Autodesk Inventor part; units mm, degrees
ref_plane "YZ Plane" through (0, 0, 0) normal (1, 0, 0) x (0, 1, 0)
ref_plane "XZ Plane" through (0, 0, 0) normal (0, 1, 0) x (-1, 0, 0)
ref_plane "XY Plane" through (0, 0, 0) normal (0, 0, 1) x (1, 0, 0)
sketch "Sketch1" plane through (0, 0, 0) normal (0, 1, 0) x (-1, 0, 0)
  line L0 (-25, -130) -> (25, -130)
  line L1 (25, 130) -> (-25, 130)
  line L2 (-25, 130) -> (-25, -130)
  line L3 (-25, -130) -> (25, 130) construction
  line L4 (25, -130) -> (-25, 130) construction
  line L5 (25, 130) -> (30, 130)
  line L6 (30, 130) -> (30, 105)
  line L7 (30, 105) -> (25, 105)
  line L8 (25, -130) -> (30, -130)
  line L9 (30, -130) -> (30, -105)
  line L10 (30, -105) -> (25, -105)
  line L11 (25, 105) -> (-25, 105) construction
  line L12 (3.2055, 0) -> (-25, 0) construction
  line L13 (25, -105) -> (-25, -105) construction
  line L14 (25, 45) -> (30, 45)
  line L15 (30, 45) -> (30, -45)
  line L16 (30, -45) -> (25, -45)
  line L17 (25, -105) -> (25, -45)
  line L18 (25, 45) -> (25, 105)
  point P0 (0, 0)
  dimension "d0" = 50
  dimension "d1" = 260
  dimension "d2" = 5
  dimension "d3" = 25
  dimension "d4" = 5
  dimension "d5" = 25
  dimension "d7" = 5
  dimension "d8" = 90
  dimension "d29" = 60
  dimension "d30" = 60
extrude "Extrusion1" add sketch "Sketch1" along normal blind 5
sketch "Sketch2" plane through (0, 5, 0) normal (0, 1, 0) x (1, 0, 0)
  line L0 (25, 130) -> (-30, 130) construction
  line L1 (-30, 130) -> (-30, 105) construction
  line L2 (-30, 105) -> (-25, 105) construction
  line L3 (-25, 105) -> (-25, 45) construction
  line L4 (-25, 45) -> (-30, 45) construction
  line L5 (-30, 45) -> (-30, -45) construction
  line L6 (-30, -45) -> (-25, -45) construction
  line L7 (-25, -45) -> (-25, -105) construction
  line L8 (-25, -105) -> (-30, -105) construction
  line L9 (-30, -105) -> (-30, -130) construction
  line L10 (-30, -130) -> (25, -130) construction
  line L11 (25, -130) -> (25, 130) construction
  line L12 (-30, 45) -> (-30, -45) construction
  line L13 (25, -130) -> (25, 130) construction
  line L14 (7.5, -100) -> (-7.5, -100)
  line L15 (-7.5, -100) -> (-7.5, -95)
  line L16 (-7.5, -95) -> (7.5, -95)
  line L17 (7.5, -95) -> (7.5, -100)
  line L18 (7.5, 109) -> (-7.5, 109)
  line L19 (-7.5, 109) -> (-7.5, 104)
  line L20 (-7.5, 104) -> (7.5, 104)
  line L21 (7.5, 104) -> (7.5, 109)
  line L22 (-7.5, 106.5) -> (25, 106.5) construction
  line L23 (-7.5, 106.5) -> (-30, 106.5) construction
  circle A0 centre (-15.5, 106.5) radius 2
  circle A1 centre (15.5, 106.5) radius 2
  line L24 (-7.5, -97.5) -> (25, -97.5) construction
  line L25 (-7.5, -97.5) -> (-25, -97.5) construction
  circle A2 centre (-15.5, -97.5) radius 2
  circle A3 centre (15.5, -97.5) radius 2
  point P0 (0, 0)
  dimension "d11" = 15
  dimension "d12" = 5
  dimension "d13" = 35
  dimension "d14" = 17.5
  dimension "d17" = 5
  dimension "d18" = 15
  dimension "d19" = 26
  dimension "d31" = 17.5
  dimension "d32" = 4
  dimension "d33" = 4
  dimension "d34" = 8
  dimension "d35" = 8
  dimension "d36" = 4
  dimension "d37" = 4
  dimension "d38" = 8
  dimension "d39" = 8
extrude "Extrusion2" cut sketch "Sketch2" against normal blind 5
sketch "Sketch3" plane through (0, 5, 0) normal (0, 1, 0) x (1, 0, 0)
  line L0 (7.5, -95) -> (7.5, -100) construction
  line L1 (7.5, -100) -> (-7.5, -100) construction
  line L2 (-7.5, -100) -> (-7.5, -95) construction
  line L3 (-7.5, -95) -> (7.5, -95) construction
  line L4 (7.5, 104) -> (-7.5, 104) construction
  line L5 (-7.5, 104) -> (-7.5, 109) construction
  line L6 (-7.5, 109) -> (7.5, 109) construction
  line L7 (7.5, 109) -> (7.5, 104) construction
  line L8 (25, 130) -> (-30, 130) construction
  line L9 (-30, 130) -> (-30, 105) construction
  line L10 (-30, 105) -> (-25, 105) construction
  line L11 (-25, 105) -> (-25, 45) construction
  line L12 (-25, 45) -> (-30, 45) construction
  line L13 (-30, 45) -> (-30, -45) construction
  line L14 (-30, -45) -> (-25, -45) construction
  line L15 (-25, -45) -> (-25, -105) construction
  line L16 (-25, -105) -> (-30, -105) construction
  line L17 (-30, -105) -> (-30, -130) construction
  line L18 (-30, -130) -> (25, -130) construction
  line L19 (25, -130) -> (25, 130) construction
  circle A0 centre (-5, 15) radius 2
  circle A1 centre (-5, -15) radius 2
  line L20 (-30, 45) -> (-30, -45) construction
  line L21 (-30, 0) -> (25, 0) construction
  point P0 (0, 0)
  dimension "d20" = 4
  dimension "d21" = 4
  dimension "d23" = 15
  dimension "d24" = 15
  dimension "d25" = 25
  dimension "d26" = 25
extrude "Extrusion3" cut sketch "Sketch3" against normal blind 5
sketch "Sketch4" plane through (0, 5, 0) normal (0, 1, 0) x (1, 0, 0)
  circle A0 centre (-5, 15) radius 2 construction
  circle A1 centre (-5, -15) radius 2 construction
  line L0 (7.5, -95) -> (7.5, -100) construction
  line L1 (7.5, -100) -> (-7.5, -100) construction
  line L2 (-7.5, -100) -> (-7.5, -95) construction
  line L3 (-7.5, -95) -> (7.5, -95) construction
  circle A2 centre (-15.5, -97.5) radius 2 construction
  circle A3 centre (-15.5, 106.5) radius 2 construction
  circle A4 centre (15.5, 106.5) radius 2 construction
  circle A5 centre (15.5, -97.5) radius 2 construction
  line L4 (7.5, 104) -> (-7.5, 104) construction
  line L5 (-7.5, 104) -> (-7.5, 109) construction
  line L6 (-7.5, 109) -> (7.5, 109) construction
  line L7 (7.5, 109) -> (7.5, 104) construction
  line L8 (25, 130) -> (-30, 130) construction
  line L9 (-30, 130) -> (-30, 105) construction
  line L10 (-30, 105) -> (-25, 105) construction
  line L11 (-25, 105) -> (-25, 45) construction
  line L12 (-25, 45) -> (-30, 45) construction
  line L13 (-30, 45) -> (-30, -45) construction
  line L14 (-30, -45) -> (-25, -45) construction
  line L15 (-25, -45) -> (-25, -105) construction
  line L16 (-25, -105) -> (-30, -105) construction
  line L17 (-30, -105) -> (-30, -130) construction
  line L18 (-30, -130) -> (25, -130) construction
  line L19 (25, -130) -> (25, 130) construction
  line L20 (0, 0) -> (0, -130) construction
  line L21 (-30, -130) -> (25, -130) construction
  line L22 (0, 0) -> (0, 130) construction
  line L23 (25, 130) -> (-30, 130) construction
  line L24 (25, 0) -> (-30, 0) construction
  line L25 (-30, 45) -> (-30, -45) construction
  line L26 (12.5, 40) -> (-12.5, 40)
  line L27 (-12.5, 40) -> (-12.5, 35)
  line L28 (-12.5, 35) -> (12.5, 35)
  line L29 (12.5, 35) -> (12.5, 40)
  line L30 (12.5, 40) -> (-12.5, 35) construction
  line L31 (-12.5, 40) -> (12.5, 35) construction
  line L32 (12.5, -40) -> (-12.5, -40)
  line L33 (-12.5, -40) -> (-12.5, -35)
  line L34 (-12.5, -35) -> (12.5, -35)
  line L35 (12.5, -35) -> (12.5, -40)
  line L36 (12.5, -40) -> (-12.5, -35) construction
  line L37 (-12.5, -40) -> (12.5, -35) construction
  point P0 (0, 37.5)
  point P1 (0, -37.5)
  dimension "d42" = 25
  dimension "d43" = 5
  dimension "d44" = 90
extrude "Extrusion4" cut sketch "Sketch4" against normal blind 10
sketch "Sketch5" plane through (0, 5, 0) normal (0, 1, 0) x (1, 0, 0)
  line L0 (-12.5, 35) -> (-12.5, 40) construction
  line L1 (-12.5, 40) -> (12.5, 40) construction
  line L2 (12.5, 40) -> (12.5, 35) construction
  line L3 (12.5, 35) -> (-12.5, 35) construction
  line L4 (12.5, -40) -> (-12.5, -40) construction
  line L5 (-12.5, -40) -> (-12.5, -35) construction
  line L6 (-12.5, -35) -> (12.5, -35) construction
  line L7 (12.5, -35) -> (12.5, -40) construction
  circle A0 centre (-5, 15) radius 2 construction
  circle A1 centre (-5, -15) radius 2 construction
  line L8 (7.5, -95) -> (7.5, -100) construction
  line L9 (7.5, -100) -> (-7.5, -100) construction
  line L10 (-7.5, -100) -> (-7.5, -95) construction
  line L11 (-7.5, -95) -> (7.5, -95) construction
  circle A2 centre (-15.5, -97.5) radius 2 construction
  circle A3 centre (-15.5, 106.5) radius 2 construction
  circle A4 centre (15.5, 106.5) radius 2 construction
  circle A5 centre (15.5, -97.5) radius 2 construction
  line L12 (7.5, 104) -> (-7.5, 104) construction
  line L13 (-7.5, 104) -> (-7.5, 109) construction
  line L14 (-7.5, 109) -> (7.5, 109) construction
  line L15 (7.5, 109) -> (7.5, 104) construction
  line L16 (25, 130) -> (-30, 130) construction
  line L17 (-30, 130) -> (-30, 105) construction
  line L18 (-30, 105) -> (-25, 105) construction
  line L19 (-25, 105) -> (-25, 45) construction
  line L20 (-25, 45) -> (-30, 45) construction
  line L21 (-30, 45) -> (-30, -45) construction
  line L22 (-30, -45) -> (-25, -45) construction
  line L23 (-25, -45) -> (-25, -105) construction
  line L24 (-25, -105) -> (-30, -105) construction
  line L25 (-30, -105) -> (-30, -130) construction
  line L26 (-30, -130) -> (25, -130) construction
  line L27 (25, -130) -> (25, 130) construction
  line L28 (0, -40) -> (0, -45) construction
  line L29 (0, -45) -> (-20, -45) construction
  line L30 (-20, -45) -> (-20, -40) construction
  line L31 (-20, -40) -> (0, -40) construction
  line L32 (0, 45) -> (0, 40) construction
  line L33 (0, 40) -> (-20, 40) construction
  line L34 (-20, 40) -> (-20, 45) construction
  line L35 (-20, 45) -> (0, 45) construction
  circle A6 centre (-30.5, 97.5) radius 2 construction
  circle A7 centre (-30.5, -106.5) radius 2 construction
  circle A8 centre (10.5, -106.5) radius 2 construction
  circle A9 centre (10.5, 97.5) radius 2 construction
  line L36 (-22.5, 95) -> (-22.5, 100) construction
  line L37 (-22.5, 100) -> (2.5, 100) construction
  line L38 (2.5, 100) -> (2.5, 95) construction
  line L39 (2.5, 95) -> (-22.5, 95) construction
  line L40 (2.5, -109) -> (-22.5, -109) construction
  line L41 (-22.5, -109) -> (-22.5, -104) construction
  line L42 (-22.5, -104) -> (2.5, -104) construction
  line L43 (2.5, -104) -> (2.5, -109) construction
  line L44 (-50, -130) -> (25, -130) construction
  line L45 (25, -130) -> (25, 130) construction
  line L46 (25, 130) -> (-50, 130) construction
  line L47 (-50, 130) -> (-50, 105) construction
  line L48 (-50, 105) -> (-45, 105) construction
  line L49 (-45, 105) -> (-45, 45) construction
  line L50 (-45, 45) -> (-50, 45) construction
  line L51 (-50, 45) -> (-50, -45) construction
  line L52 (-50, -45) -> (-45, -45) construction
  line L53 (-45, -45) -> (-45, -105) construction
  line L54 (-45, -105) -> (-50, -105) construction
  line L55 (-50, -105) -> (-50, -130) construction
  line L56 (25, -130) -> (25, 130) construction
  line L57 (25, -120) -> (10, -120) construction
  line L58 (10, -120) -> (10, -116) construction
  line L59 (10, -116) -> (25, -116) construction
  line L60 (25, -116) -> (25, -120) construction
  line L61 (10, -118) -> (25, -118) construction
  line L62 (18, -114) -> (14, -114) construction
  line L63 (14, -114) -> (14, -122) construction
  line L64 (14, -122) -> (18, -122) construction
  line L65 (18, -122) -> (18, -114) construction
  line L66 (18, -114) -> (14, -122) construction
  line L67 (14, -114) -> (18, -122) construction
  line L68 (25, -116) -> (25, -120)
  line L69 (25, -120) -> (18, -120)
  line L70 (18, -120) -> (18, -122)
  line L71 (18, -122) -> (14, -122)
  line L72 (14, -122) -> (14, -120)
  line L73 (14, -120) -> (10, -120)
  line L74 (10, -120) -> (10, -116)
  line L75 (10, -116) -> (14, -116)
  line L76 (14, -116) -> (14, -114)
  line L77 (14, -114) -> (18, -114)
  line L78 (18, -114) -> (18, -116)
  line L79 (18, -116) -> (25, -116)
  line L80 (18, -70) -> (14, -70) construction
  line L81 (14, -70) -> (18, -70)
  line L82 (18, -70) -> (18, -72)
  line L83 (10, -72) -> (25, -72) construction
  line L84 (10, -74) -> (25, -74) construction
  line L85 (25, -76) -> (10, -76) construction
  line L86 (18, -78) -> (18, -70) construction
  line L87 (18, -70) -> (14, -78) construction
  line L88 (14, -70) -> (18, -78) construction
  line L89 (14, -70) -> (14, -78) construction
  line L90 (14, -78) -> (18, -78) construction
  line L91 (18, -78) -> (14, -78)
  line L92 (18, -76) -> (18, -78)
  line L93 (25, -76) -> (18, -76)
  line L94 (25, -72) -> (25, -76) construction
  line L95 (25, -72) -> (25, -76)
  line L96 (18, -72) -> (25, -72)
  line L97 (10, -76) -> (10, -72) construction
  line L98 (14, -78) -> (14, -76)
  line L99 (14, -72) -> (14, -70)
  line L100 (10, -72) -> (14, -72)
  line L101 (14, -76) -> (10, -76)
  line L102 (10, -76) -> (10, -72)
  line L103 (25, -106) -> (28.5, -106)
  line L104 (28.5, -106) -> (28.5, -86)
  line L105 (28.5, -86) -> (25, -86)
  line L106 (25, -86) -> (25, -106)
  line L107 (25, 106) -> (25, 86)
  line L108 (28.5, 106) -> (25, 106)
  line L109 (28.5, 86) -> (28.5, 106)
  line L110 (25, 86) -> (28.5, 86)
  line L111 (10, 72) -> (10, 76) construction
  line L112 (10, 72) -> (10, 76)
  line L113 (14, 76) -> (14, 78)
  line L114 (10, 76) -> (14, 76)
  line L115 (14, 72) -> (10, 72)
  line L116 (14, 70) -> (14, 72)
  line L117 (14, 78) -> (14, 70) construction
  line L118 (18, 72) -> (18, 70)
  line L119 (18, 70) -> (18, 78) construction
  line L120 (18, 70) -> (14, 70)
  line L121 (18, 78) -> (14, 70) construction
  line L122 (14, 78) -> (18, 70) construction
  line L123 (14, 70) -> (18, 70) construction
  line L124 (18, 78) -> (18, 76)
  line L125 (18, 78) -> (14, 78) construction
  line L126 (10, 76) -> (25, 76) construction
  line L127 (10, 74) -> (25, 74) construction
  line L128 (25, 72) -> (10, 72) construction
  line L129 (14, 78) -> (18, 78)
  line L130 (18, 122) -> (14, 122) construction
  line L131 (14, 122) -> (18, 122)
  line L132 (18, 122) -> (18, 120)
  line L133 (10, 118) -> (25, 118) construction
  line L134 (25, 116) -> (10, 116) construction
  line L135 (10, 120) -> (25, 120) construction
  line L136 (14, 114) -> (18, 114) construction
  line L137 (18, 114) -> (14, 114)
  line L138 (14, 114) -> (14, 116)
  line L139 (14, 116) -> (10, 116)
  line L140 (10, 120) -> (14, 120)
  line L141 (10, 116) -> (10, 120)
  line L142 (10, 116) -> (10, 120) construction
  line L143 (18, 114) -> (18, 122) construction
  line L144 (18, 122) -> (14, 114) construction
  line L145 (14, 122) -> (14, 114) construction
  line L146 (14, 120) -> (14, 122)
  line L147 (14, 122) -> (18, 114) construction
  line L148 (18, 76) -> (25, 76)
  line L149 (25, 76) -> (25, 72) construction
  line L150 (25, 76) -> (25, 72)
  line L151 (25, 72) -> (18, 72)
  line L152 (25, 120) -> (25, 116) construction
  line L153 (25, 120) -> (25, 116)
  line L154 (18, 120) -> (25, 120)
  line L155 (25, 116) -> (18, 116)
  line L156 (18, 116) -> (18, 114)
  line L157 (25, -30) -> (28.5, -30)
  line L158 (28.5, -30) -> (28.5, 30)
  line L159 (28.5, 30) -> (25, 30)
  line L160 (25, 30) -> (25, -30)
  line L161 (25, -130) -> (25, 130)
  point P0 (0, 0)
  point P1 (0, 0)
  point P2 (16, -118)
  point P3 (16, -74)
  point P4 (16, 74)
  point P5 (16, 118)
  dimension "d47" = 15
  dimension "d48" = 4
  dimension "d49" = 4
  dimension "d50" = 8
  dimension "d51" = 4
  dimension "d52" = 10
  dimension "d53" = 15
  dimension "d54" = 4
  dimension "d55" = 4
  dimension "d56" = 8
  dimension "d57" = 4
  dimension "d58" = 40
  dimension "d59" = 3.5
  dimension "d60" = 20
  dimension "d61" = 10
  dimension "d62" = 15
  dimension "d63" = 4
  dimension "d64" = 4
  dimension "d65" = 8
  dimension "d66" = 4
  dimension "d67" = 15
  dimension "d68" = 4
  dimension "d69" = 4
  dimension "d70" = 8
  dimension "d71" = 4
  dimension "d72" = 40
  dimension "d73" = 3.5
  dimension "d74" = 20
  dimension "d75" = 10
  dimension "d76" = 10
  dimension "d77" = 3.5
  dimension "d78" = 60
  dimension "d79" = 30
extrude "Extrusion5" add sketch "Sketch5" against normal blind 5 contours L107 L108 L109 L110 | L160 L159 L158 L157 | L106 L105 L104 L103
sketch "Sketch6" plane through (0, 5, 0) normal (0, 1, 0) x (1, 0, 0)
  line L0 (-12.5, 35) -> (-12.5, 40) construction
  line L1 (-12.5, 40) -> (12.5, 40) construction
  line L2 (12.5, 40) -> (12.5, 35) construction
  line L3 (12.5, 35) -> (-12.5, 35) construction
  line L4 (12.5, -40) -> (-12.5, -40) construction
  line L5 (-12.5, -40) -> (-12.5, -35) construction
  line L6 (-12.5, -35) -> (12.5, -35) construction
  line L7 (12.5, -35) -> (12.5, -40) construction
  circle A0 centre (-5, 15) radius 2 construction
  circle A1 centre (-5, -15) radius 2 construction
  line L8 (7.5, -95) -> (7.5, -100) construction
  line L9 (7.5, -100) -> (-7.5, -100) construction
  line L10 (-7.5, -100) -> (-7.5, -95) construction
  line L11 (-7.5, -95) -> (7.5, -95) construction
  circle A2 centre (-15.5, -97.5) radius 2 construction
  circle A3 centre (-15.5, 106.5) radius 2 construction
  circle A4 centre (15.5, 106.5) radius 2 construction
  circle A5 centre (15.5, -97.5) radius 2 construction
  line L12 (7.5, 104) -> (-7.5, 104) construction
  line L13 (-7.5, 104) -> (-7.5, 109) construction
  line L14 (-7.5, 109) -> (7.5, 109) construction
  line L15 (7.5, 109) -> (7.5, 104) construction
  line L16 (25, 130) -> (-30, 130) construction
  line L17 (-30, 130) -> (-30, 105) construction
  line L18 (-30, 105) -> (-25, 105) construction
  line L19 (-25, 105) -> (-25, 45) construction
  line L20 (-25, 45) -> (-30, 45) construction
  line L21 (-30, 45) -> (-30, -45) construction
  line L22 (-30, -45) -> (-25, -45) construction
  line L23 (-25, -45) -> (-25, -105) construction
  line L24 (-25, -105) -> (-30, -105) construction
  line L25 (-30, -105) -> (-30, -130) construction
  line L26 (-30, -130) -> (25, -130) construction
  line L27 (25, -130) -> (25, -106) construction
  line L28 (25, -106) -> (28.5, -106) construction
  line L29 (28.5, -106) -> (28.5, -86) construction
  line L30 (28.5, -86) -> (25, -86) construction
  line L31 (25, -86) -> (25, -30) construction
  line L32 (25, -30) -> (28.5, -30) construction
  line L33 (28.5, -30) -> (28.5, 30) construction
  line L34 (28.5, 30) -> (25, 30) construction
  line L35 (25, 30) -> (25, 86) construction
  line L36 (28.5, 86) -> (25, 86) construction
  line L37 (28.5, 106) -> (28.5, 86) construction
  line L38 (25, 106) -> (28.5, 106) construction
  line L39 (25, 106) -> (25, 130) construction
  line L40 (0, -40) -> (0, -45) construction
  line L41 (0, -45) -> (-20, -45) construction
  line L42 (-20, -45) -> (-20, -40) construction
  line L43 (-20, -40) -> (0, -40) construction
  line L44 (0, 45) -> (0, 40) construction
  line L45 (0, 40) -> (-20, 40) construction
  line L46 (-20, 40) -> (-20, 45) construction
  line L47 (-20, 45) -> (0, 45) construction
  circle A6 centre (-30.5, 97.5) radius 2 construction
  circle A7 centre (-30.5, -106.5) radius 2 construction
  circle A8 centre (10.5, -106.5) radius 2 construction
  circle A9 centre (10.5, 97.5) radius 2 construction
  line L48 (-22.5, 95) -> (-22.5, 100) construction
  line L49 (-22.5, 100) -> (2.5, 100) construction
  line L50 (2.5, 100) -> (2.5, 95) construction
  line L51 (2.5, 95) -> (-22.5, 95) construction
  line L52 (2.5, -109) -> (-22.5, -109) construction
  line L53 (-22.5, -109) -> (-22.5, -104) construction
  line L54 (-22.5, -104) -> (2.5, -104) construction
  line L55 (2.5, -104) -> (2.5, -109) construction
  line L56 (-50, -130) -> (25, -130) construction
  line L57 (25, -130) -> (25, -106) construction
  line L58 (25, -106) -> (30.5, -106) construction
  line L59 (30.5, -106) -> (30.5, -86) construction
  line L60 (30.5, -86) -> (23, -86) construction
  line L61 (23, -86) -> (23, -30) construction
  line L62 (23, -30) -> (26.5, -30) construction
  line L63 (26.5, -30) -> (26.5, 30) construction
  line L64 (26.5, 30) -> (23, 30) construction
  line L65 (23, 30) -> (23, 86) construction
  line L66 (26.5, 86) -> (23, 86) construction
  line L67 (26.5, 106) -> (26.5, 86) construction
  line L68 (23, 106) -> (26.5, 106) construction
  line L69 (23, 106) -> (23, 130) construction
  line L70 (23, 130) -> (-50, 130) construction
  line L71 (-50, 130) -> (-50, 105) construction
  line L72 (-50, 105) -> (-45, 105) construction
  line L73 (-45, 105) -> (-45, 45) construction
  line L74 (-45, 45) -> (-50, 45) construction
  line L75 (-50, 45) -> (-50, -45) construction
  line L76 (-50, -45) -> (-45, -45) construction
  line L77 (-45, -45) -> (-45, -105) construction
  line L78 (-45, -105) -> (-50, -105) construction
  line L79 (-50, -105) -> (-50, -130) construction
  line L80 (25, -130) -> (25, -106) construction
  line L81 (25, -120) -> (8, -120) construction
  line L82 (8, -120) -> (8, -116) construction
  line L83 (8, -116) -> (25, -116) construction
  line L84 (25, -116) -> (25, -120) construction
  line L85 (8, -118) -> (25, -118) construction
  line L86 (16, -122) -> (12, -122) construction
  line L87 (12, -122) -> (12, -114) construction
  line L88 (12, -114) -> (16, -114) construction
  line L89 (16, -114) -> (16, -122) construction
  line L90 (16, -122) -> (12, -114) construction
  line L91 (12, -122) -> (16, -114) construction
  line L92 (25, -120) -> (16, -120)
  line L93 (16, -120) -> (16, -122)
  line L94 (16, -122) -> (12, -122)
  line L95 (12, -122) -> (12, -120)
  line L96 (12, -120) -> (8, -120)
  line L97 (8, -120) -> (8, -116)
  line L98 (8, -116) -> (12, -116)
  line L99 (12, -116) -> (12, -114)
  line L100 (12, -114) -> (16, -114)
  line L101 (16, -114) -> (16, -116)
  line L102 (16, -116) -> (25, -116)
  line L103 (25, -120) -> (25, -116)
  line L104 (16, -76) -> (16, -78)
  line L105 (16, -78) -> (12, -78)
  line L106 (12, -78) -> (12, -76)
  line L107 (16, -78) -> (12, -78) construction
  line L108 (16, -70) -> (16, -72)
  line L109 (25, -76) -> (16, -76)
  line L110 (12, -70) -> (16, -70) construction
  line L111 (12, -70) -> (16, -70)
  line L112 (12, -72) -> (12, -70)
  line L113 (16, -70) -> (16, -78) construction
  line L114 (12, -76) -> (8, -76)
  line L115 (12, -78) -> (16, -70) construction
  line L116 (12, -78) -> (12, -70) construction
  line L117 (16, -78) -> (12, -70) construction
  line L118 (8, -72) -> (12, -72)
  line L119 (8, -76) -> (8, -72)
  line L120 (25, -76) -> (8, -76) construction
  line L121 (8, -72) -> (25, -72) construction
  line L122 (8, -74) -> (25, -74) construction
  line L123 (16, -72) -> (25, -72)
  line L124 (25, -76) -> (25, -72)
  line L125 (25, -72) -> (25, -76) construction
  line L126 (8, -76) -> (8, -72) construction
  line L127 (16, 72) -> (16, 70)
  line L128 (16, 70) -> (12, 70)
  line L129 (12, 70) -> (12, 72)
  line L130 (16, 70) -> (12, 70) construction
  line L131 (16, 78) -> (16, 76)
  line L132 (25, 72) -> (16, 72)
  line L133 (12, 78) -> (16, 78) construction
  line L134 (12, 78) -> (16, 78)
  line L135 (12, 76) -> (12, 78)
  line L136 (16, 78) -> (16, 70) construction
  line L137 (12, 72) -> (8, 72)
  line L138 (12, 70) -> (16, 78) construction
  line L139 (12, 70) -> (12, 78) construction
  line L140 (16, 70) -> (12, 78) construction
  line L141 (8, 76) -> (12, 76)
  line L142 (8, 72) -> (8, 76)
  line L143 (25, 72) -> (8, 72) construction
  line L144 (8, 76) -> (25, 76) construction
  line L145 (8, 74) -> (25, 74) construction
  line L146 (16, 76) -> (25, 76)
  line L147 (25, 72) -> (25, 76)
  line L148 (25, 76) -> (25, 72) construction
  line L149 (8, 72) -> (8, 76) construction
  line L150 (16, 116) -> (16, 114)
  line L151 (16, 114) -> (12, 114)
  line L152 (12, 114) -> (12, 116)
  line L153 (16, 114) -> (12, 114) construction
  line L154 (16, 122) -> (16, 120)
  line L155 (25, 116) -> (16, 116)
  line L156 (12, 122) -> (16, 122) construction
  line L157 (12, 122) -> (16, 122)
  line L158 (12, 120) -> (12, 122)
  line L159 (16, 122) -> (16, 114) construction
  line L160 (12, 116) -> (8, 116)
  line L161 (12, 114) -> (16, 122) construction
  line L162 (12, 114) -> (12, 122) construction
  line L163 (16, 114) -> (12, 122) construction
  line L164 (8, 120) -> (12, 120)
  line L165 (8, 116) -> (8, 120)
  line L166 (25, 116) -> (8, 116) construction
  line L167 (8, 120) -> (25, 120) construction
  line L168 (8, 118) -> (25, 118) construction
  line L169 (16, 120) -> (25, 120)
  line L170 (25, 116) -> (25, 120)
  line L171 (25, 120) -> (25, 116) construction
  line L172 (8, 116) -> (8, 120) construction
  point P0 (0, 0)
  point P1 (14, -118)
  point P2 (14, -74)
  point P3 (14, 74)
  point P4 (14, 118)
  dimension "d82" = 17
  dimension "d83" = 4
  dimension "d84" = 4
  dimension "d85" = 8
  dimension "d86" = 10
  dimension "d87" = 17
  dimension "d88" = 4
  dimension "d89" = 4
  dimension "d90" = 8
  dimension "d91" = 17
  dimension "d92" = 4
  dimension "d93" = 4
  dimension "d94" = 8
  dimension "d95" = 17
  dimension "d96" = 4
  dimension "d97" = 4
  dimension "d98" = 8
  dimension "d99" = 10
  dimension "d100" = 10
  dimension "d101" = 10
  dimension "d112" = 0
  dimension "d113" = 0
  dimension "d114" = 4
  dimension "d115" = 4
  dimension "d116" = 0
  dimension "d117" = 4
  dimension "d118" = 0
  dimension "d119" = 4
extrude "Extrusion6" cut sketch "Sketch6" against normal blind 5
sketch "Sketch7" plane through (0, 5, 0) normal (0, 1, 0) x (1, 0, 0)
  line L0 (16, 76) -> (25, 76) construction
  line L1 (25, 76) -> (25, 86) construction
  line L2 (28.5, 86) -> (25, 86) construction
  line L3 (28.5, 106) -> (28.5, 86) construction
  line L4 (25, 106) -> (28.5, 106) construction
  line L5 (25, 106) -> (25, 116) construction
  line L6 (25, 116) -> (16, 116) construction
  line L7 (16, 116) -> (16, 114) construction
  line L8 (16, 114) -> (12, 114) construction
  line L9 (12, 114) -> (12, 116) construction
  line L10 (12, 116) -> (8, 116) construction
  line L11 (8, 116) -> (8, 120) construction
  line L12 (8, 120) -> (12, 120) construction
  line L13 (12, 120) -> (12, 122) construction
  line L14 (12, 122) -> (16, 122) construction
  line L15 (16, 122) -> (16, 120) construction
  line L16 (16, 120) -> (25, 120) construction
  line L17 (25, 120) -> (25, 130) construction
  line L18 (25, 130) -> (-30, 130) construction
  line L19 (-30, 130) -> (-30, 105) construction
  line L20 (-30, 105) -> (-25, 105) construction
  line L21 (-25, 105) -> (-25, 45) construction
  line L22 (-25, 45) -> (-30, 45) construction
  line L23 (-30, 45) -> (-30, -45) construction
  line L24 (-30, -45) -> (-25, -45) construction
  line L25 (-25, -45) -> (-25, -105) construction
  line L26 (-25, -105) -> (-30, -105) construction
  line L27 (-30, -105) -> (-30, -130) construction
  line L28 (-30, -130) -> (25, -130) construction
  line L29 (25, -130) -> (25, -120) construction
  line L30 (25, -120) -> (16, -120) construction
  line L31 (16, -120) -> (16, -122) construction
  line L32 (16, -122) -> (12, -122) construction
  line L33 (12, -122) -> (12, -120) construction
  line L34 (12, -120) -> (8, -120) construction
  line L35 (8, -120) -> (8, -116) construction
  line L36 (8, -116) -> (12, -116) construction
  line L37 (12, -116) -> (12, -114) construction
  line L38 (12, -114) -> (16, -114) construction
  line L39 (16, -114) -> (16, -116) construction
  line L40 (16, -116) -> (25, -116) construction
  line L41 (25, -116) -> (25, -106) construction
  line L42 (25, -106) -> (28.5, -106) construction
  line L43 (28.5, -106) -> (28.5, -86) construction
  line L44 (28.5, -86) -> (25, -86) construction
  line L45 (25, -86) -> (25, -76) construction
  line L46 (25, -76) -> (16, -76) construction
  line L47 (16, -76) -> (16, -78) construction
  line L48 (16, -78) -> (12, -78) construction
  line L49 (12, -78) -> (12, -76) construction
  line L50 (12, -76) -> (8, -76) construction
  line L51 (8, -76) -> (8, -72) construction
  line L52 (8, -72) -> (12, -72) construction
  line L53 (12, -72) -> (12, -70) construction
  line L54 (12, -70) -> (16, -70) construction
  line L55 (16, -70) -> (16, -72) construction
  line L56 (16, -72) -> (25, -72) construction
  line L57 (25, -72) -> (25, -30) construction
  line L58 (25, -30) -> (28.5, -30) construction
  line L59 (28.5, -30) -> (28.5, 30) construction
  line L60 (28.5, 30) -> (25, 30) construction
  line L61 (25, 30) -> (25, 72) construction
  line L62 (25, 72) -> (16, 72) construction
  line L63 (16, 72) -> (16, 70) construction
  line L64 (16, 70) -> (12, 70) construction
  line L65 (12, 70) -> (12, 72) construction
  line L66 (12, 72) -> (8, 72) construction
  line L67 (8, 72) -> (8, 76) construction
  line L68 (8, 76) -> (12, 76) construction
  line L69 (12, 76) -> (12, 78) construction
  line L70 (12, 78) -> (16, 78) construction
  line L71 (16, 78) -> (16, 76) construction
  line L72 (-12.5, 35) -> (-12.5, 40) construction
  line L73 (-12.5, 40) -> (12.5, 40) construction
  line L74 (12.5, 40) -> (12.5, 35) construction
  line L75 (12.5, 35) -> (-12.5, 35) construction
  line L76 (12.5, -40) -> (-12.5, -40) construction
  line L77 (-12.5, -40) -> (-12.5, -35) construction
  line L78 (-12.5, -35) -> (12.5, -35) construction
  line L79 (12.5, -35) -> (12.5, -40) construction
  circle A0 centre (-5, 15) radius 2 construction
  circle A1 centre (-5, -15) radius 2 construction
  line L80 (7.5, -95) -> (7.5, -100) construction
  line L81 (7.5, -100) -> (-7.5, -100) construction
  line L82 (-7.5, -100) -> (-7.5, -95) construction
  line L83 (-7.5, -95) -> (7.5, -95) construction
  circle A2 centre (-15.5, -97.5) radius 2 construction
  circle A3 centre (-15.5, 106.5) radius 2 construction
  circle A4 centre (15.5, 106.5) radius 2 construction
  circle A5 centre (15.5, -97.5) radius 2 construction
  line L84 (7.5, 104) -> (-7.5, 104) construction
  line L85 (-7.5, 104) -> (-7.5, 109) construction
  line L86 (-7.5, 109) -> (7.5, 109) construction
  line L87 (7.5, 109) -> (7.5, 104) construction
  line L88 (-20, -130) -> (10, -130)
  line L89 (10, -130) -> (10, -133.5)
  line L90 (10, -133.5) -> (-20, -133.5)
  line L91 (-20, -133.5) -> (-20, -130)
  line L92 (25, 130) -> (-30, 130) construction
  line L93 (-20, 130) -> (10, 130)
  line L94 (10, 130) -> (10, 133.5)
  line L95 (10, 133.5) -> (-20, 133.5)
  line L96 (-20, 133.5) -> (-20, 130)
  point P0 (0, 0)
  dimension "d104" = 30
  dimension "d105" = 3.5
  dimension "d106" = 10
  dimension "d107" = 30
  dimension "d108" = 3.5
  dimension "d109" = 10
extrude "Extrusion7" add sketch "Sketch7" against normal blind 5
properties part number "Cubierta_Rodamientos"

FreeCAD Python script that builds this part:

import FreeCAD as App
import Part
import Sketcher
Q = App.Units.Quantity

doc = App.newDocument("Part")
params = doc.addObject("Spreadsheet::Sheet", "Params")
for row, (alias, value) in enumerate([
    ("sketch1_width", "5 mm"),
    ("sketch1_height", "260 mm"),
    ("sketch1_height2", "25 mm"),
    ("sketch1_height3", "60 mm"),
    ("pad1_length", "5 mm"),
    ("sketch2_diameter", "4 mm"),
    ("sketch2_width", "15 mm"),
    ("sketch2_height", "5 mm"),
    ("pocket1_length", "5 mm"),
    ("sketch3_diameter", "4 mm"),
    ("pocket2_length", "5 mm"),
    ("sketch4_width", "25 mm"),
    ("sketch4_height", "5 mm"),
    ("pocket3_length", "10 mm"),
    ("sketch5_height", "20 mm"),
    ("sketch5_height2", "60 mm"),
    ("sketch5_width", "3.5 mm"),
    ("pad2_length", "5 mm"),
    ("sketch6_width", "4 mm"),
    ("pocket4_length", "5 mm"),
    ("sketch7_width", "30 mm"),
    ("sketch7_height", "3.5 mm"),
    ("pad3_length", "5 mm"),
], start=1):
    params.set(f"A{row}", alias)
    params.set(f"B{row}", "=" + value)
    params.setAlias(f"B{row}", alias)

body = doc.addObject("PartDesign::Body", "Body")

# Sketch on XZ plane
sketch1 = body.newObject("Sketcher::SketchObject", "Sketch")
sketch1.AttachmentSupport = (doc.getObject("XZ_Plane"), [""])
sketch1.MapMode = "FlatFace"
sketch1.addGeometry([
    Part.LineSegment(App.Vector(25, 130, 0), App.Vector(25, -130, 0)),  # 0
    Part.LineSegment(App.Vector(25, -130, 0), App.Vector(-30, -130, 0)),  # 1
    Part.LineSegment(App.Vector(-30, -130, 0), App.Vector(-30, -105, 0)),  # 2
    Part.LineSegment(App.Vector(-30, -105, 0), App.Vector(-25, -105, 0)),  # 3
    Part.LineSegment(App.Vector(-25, -105, 0), App.Vector(-25, -45, 0)),  # 4
    Part.LineSegment(App.Vector(-25, -45, 0), App.Vector(-30, -45, 0)),  # 5
    Part.LineSegment(App.Vector(-30, -45, 0), App.Vector(-30, 45, 0)),  # 6
    Part.LineSegment(App.Vector(-30, 45, 0), App.Vector(-25, 45, 0)),  # 7
    Part.LineSegment(App.Vector(-25, 45, 0), App.Vector(-25, 105, 0)),  # 8
    Part.LineSegment(App.Vector(-25, 105, 0), App.Vector(-30, 105, 0)),  # 9
    Part.LineSegment(App.Vector(-30, 105, 0), App.Vector(-30, 130, 0)),  # 10
    Part.LineSegment(App.Vector(-30, 130, 0), App.Vector(25, 130, 0)),  # 11
], False)
sketch1.addConstraint([
    Sketcher.Constraint("Coincident", 0, 2, 1, 1),
    Sketcher.Constraint("Coincident", 1, 2, 2, 1),
    Sketcher.Constraint("Coincident", 2, 2, 3, 1),
    Sketcher.Constraint("Coincident", 3, 2, 4, 1),
    Sketcher.Constraint("Coincident", 4, 2, 5, 1),
    Sketcher.Constraint("Coincident", 5, 2, 6, 1),
    Sketcher.Constraint("Coincident", 6, 2, 7, 1),
    Sketcher.Constraint("Coincident", 7, 2, 8, 1),
    Sketcher.Constraint("Coincident", 8, 2, 9, 1),
    Sketcher.Constraint("Coincident", 9, 2, 10, 1),
    Sketcher.Constraint("Coincident", 10, 2, 11, 1),
    Sketcher.Constraint("Coincident", 11, 2, 0, 1),
    Sketcher.Constraint("Vertical", 0),
    Sketcher.Constraint("Horizontal", 1),
    Sketcher.Constraint("Vertical", 2),
    Sketcher.Constraint("Horizontal", 3),
    Sketcher.Constraint("Vertical", 4),
    Sketcher.Constraint("Horizontal", 5),
    Sketcher.Constraint("Vertical", 6),
    Sketcher.Constraint("Horizontal", 7),
    Sketcher.Constraint("Vertical", 8),
    Sketcher.Constraint("Horizontal", 9),
    Sketcher.Constraint("Vertical", 10),
    Sketcher.Constraint("Horizontal", 11),
    Sketcher.Constraint("Symmetric", 4, 2, 7, 2, -1),
    Sketcher.Constraint("Symmetric", 2, 2, 9, 2, -1),
    Sketcher.Constraint("Vertical", 2, 2, 5, 2),
    Sketcher.Constraint("Equal", 2, 10),
    Sketcher.Constraint("DistanceX", 3, 1, 3, 2, Q("5 mm")),
    Sketcher.Constraint("DistanceY", 0, 2, 0, 1, Q("260 mm")),
    Sketcher.Constraint("DistanceY", 2, 1, 2, 2, Q("25 mm")),
    Sketcher.Constraint("DistanceY", 4, 1, 4, 2, Q("60 mm")),
    Sketcher.Constraint("DistanceX", -1, 1, 0, 2, Q("25 mm")),
    Sketcher.Constraint("DistanceX", 3, 2, -1, 1, Q("25 mm")),
])
sketch1.setExpression("Constraints[28]", "Params.sketch1_width")
sketch1.setExpression("Constraints[29]", "Params.sketch1_height")
sketch1.setExpression("Constraints[30]", "Params.sketch1_height2")
sketch1.setExpression("Constraints[31]", "Params.sketch1_height3")
pad1 = body.newObject("PartDesign::Pad", "Pad")
pad1.Profile = sketch1
pad1.setExpression("Length", "Params.pad1_length")
pad1.Reversed = True

# Sketch on XZ plane
sketch2 = body.newObject("Sketcher::SketchObject", "Sketch001")
sketch2.AttachmentSupport = (doc.getObject("XZ_Plane"), [""])
sketch2.MapMode = "FlatFace"
sketch2.AttachmentOffset = App.Placement(App.Vector(0, 0, -5), App.Rotation())
sketch2.addGeometry([
    Part.LineSegment(App.Vector(-7.5, 100, 0), App.Vector(7.5, 100, 0)),  # 0
    Part.LineSegment(App.Vector(7.5, 100, 0), App.Vector(7.5, 95, 0)),  # 1
    Part.LineSegment(App.Vector(7.5, 95, 0), App.Vector(-7.5, 95, 0)),  # 2
    Part.LineSegment(App.Vector(-7.5, 95, 0), App.Vector(-7.5, 100, 0)),  # 3
    Part.LineSegment(App.Vector(7.5, -104, 0), App.Vector(7.5, -109, 0)),  # 4
    Part.LineSegment(App.Vector(7.5, -109, 0), App.Vector(-7.5, -109, 0)),  # 5
    Part.LineSegment(App.Vector(-7.5, -109, 0), App.Vector(-7.5, -104, 0)),  # 6
    Part.LineSegment(App.Vector(-7.5, -104, 0), App.Vector(7.5, -104, 0)),  # 7
    Part.Circle(App.Vector(-15.5, -106.5, 0), App.Vector(0, 0, 1), 2),  # 8
    Part.Circle(App.Vector(15.5, -106.5, 0), App.Vector(0, 0, 1), 2),  # 9
    Part.Circle(App.Vector(-15.5, 97.5, 0), App.Vector(0, 0, 1), 2),  # 10
    Part.Circle(App.Vector(15.5, 97.5, 0), App.Vector(0, 0, 1), 2),  # 11
], False)
sketch2.addConstraint([
    Sketcher.Constraint("Coincident", 0, 2, 1, 1),
    Sketcher.Constraint("Coincident", 1, 2, 2, 1),
    Sketcher.Constraint("Coincident", 2, 2, 3, 1),
    Sketcher.Constraint("Coincident", 3, 2, 0, 1),
    Sketcher.Constraint("Coincident", 4, 2, 5, 1),
    Sketcher.Constraint("Coincident", 5, 2, 6, 1),
    Sketcher.Constraint("Coincident", 6, 2, 7, 1),
    Sketcher.Constraint("Coincident", 7, 2, 4, 1),
    Sketcher.Constraint("Horizontal", 0),
    Sketcher.Constraint("Vertical", 1),
    Sketcher.Constraint("Horizontal", 2),
    Sketcher.Constraint("Vertical", 3),
    Sketcher.Constraint("Vertical", 4),
    Sketcher.Constraint("Horizontal", 5),
    Sketcher.Constraint("Vertical", 6),
    Sketcher.Constraint("Horizontal", 7),
    Sketcher.Constraint("Equal", 8, 9),
    Sketcher.Constraint("Equal", 9, 10),
    Sketcher.Constraint("Equal", 10, 11),
    Sketcher.Constraint("Symmetric", 8, 3, 9, 3, -2),
    Sketcher.Constraint("Symmetric", 10, 3, 11, 3, -2),
    Sketcher.Constraint("Vertical", 8, 3, 10, 3),
    Sketcher.Constraint("Vertical", 1, 2, 4, 2),
    Sketcher.Constraint("Vertical", 3, 2, 5, 2),
    Sketcher.Constraint("Equal", 3, 4),
    Sketcher.Constraint("Diameter", 8, Q("4 mm")),
    Sketcher.Constraint("DistanceX", 0, 1, 0, 2, Q("15 mm")),
    Sketcher.Constraint("DistanceY", 1, 2, 1, 1, Q("5 mm")),
    Sketcher.Constraint("DistanceX", 0, 2, 11, 3, Q("8 mm")),
    Sketcher.Constraint("DistanceX", 10, 3, 2, 2, Q("8 mm")),
    Sketcher.Constraint("DistanceY", -1, 1, 0, 2, Q("100 mm")),
    Sketcher.Constraint("DistanceY", 4, 2, -1, 1, Q("109 mm")),
    Sketcher.Constraint("DistanceY", 8, 3, 10, 3, Q("204 mm")),
    Sketcher.Constraint("DistanceY", 8, 3, -1, 1, Q("106.5 mm")),
])
sketch2.setExpression("Constraints[25]", "Params.sketch2_diameter")
sketch2.setExpression("Constraints[26]", "Params.sketch2_width")
sketch2.setExpression("Constraints[27]", "Params.sketch2_height")
pocket1 = body.newObject("PartDesign::Pocket", "Pocket")
pocket1.Profile = sketch2
pocket1.setExpression("Length", "Params.pocket1_length")
pocket1.Reversed = True

# Sketch on XZ plane
sketch3 = body.newObject("Sketcher::SketchObject", "Sketch002")
sketch3.AttachmentSupport = (doc.getObject("XZ_Plane"), [""])
sketch3.MapMode = "FlatFace"
sketch3.AttachmentOffset = App.Placement(App.Vector(0, 0, -5), App.Rotation())
sketch3.addGeometry([
    Part.Circle(App.Vector(-5, -15, 0), App.Vector(0, 0, 1), 2),
    Part.Circle(App.Vector(-5, 15, 0), App.Vector(0, 0, 1), 2),
], False)
sketch3.addConstraint([
    Sketcher.Constraint("Equal", 0, 1),
    Sketcher.Constraint("Symmetric", 0, 3, 1, 3, -1),
    Sketcher.Constraint("Diameter", 0, Q("4 mm")),
    Sketcher.Constraint("DistanceY", 0, 3, -1, 1, Q("15 mm")),
    Sketcher.Constraint("DistanceX", 0, 3, -1, 1, Q("5 mm")),
])
sketch3.setExpression("Constraints[2]", "Params.sketch3_diameter")
pocket2 = body.newObject("PartDesign::Pocket", "Pocket001")
pocket2.Profile = sketch3
pocket2.setExpression("Length", "Params.pocket2_length")
pocket2.Reversed = True

# Sketch on XZ plane
sketch4 = body.newObject("Sketcher::SketchObject", "Sketch003")
sketch4.AttachmentSupport = (doc.getObject("XZ_Plane"), [""])
sketch4.MapMode = "FlatFace"
sketch4.AttachmentOffset = App.Placement(App.Vector(0, 0, -5), App.Rotation())
sketch4.addGeometry([
    Part.LineSegment(App.Vector(12.5, -35, 0), App.Vector(12.5, -40, 0)),  # 0
    Part.LineSegment(App.Vector(12.5, -40, 0), App.Vector(-12.5, -40, 0)),  # 1
    Part.LineSegment(App.Vector(-12.5, -40, 0), App.Vector(-12.5, -35, 0)),  # 2
    Part.LineSegment(App.Vector(-12.5, -35, 0), App.Vector(12.5, -35, 0)),  # 3
    Part.LineSegment(App.Vector(-12.5, 40, 0), App.Vector(12.5, 40, 0)),  # 4
    Part.LineSegment(App.Vector(12.5, 40, 0), App.Vector(12.5, 35, 0)),  # 5
    Part.LineSegment(App.Vector(12.5, 35, 0), App.Vector(-12.5, 35, 0)),  # 6
    Part.LineSegment(App.Vector(-12.5, 35, 0), App.Vector(-12.5, 40, 0)),  # 7
], False)
sketch4.addConstraint([
    Sketcher.Constraint("Coincident", 0, 2, 1, 1),
    Sketcher.Constraint("Coincident", 1, 2, 2, 1),
    Sketcher.Constraint("Coincident", 2, 2, 3, 1),
    Sketcher.Constraint("Coincident", 3, 2, 0, 1),
    Sketcher.Constraint("Coincident", 4, 2, 5, 1),
    Sketcher.Constraint("Coincident", 5, 2, 6, 1),
    Sketcher.Constraint("Coincident", 6, 2, 7, 1),
    Sketcher.Constraint("Coincident", 7, 2, 4, 1),
    Sketcher.Constraint("Vertical", 0),
    Sketcher.Constraint("Horizontal", 1),
    Sketcher.Constraint("Vertical", 2),
    Sketcher.Constraint("Horizontal", 3),
    Sketcher.Constraint("Horizontal", 4),
    Sketcher.Constraint("Vertical", 5),
    Sketcher.Constraint("Horizontal", 6),
    Sketcher.Constraint("Vertical", 7),
    Sketcher.Constraint("Symmetric", 1, 2, 4, 2, -1, 1),
    Sketcher.Constraint("Symmetric", 3, 2, 6, 2, -1, 1),
    Sketcher.Constraint("Vertical", 3, 2, 4, 2),
    Sketcher.Constraint("DistanceX", 1, 2, 1, 1, Q("25 mm")),
    Sketcher.Constraint("DistanceY", 0, 2, 0, 1, Q("5 mm")),
    Sketcher.Constraint("DistanceY", 0, 2, -1, 1, Q("40 mm")),
])
sketch4.setExpression("Constraints[19]", "Params.sketch4_width")
sketch4.setExpression("Constraints[20]", "Params.sketch4_height")
pocket3 = body.newObject("PartDesign::Pocket", "Pocket002")
pocket3.Profile = sketch4
pocket3.setExpression("Length", "Params.pocket3_length")
pocket3.Reversed = True

# Sketch on XZ plane
sketch5 = body.newObject("Sketcher::SketchObject", "Sketch004")
sketch5.AttachmentSupport = (doc.getObject("XZ_Plane"), [""])
sketch5.MapMode = "FlatFace"
sketch5.AttachmentOffset = App.Placement(App.Vector(0, 0, -5), App.Rotation())
sketch5.addGeometry([
    Part.LineSegment(App.Vector(25, -106, 0), App.Vector(25, -86, 0)),  # 0
    Part.LineSegment(App.Vector(25, -86, 0), App.Vector(28.5, -86, 0)),  # 1
    Part.LineSegment(App.Vector(28.5, -86, 0), App.Vector(28.5, -106, 0)),  # 2
    Part.LineSegment(App.Vector(28.5, -106, 0), App.Vector(25, -106, 0)),  # 3
    Part.LineSegment(App.Vector(25, -30, 0), App.Vector(25, 30, 0)),  # 4
    Part.LineSegment(App.Vector(25, 30, 0), App.Vector(28.5, 30, 0)),  # 5
    Part.LineSegment(App.Vector(28.5, 30, 0), App.Vector(28.5, -30, 0)),  # 6
    Part.LineSegment(App.Vector(28.5, -30, 0), App.Vector(25, -30, 0)),  # 7
    Part.LineSegment(App.Vector(25, 86, 0), App.Vector(25, 106, 0)),  # 8
    Part.LineSegment(App.Vector(25, 106, 0), App.Vector(28.5, 106, 0)),  # 9
    Part.LineSegment(App.Vector(28.5, 106, 0), App.Vector(28.5, 86, 0)),  # 10
    Part.LineSegment(App.Vector(28.5, 86, 0), App.Vector(25, 86, 0)),  # 11
], False)
sketch5.addConstraint([
    Sketcher.Constraint("Coincident", 0, 2, 1, 1),
    Sketcher.Constraint("Coincident", 1, 2, 2, 1),
    Sketcher.Constraint("Coincident", 2, 2, 3, 1),
    Sketcher.Constraint("Coincident", 3, 2, 0, 1),
    Sketcher.Constraint("Coincident", 4, 2, 5, 1),
    Sketcher.Constraint("Coincident", 5, 2, 6, 1),
    Sketcher.Constraint("Coincident", 6, 2, 7, 1),
    Sketcher.Constraint("Coincident", 7, 2, 4, 1),
    Sketcher.Constraint("Coincident", 8, 2, 9, 1),
    Sketcher.Constraint("Coincident", 9, 2, 10, 1),
    Sketcher.Constraint("Coincident", 10, 2, 11, 1),
    Sketcher.Constraint("Coincident", 11, 2, 8, 1),
    Sketcher.Constraint("Vertical", 0),
    Sketcher.Constraint("Horizontal", 1),
    Sketcher.Constraint("Vertical", 2),
    Sketcher.Constraint("Horizontal", 3),
    Sketcher.Constraint("Vertical", 4),
    Sketcher.Constraint("Horizontal", 5),
    Sketcher.Constraint("Vertical", 6),
    Sketcher.Constraint("Horizontal", 7),
    Sketcher.Constraint("Vertical", 8),
    Sketcher.Constraint("Horizontal", 9),
    Sketcher.Constraint("Vertical", 10),
    Sketcher.Constraint("Horizontal", 11),
    Sketcher.Constraint("Symmetric", 3, 2, 8, 2, -1),
    Sketcher.Constraint("Symmetric", 1, 2, 10, 2, -1),
    Sketcher.Constraint("Vertical", 3, 2, 4, 2),
    Sketcher.Constraint("Vertical", 2, 2, 5, 2),
    Sketcher.Constraint("DistanceY", 0, 1, 0, 2, Q("20 mm")),
    Sketcher.Constraint("DistanceY", 4, 1, 4, 2, Q("60 mm")),
    Sketcher.Constraint("DistanceX", 1, 1, 1, 2, Q("3.5 mm")),
    Sketcher.Constraint("DistanceY", -1, 1, 4, 2, Q("30 mm")),
    Sketcher.Constraint("DistanceX", -1, 1, 0, 2, Q("25 mm")),
    Sketcher.Constraint("DistanceY", 0, 2, -1, 1, Q("86 mm")),
])
sketch5.setExpression("Constraints[28]", "Params.sketch5_height")
sketch5.setExpression("Constraints[29]", "Params.sketch5_height2")
sketch5.setExpression("Constraints[30]", "Params.sketch5_width")
pad2 = body.newObject("PartDesign::Pad", "Pad001")
pad2.Profile = sketch5
pad2.setExpression("Length", "Params.pad2_length")

# Sketch on XZ plane
sketch6 = body.newObject("Sketcher::SketchObject", "Sketch005")
sketch6.AttachmentSupport = (doc.getObject("XZ_Plane"), [""])
sketch6.MapMode = "FlatFace"
sketch6.AttachmentOffset = App.Placement(App.Vector(0, 0, -5), App.Rotation())
sketch6.addGeometry([
    Part.LineSegment(App.Vector(16, 120, 0), App.Vector(25, 120, 0)),  # 0
    Part.LineSegment(App.Vector(25, 120, 0), App.Vector(25, 116, 0)),  # 1
    Part.LineSegment(App.Vector(25, 116, 0), App.Vector(16, 116, 0)),  # 2
    Part.LineSegment(App.Vector(16, 116, 0), App.Vector(16, 114, 0)),  # 3
    Part.LineSegment(App.Vector(16, 114, 0), App.Vector(12, 114, 0)),  # 4
    Part.LineSegment(App.Vector(12, 114, 0), App.Vector(12, 116, 0)),  # 5
    Part.LineSegment(App.Vector(12, 116, 0), App.Vector(8, 116, 0)),  # 6
    Part.LineSegment(App.Vector(8, 116, 0), App.Vector(8, 120, 0)),  # 7
    Part.LineSegment(App.Vector(8, 120, 0), App.Vector(12, 120, 0)),  # 8
    Part.LineSegment(App.Vector(12, 120, 0), App.Vector(12, 122, 0)),  # 9
    Part.LineSegment(App.Vector(12, 122, 0), App.Vector(16, 122, 0)),  # 10
    Part.LineSegment(App.Vector(16, 122, 0), App.Vector(16, 120, 0)),  # 11
    Part.LineSegment(App.Vector(16, 78, 0), App.Vector(16, 76, 0)),  # 12
    Part.LineSegment(App.Vector(16, 76, 0), App.Vector(25, 76, 0)),  # 13
    Part.LineSegment(App.Vector(25, 76, 0), App.Vector(25, 72, 0)),  # 14
    Part.LineSegment(App.Vector(25, 72, 0), App.Vector(16, 72, 0)),  # 15
    Part.LineSegment(App.Vector(16, 72, 0), App.Vector(16, 70, 0)),  # 16
    Part.LineSegment(App.Vector(16, 70, 0), App.Vector(12, 70, 0)),  # 17
    Part.LineSegment(App.Vector(12, 70, 0), App.Vector(12, 72, 0)),  # 18
    Part.LineSegment(App.Vector(12, 72, 0), App.Vector(8, 72, 0)),  # 19
    Part.LineSegment(App.Vector(8, 72, 0), App.Vector(8, 76, 0)),  # 20
    Part.LineSegment(App.Vector(8, 76, 0), App.Vector(12, 76, 0)),  # 21
    Part.LineSegment(App.Vector(12, 76, 0), App.Vector(12, 78, 0)),  # 22
    Part.LineSegment(App.Vector(12, 78, 0), App.Vector(16, 78, 0)),  # 23
    Part.LineSegment(App.Vector(16, -70, 0), App.Vector(16, -72, 0)),  # 24
    Part.LineSegment(App.Vector(16, -72, 0), App.Vector(25, -72, 0)),  # 25
    Part.LineSegment(App.Vector(25, -72, 0), App.Vector(25, -76, 0)),  # 26
    Part.LineSegment(App.Vector(25, -76, 0), App.Vector(16, -76, 0)),  # 27
    Part.LineSegment(App.Vector(16, -76, 0), App.Vector(16, -78, 0)),  # 28
    Part.LineSegment(App.Vector(16, -78, 0), App.Vector(12, -78, 0)),  # 29
    Part.LineSegment(App.Vector(12, -78, 0), App.Vector(12, -76, 0)),  # 30
    Part.LineSegment(App.Vector(12, -76, 0), App.Vector(8, -76, 0)),  # 31
    Part.LineSegment(App.Vector(8, -76, 0), App.Vector(8, -72, 0)),  # 32
    Part.LineSegment(App.Vector(8, -72, 0), App.Vector(12, -72, 0)),  # 33
    Part.LineSegment(App.Vector(12, -72, 0), App.Vector(12, -70, 0)),  # 34
    Part.LineSegment(App.Vector(12, -70, 0), App.Vector(16, -70, 0)),  # 35
    Part.LineSegment(App.Vector(16, -114, 0), App.Vector(16, -116, 0)),  # 36
    Part.LineSegment(App.Vector(16, -116, 0), App.Vector(25, -116, 0)),  # 37
    Part.LineSegment(App.Vector(25, -116, 0), App.Vector(25, -120, 0)),  # 38
    Part.LineSegment(App.Vector(25, -120, 0), App.Vector(16, -120, 0)),  # 39
    Part.LineSegment(App.Vector(16, -120, 0), App.Vector(16, -122, 0)),  # 40
    Part.LineSegment(App.Vector(16, -122, 0), App.Vector(12, -122, 0)),  # 41
    Part.LineSegment(App.Vector(12, -122, 0), App.Vector(12, -120, 0)),  # 42
    Part.LineSegment(App.Vector(12, -120, 0), App.Vector(8, -120, 0)),  # 43
    Part.LineSegment(App.Vector(8, -120, 0), App.Vector(8, -116, 0)),  # 44
    Part.LineSegment(App.Vector(8, -116, 0), App.Vector(12, -116, 0)),  # 45
    Part.LineSegment(App.Vector(12, -116, 0), App.Vector(12, -114, 0)),  # 46
    Part.LineSegment(App.Vector(12, -114, 0), App.Vector(16, -114, 0)),  # 47
], False)
sketch6.addConstraint([
    Sketcher.Constraint("Coincident", 0, 2, 1, 1),
    Sketcher.Constraint("Coincident", 1, 2, 2, 1),
    Sketcher.Constraint("Coincident", 2, 2, 3, 1),
    Sketcher.Constraint("Coincident", 3, 2, 4, 1),
    Sketcher.Constraint("Coincident", 4, 2, 5, 1),
    Sketcher.Constraint("Coincident", 5, 2, 6, 1),
    Sketcher.Constraint("Coincident", 6, 2, 7, 1),
    Sketcher.Constraint("Coincident", 7, 2, 8, 1),
    Sketcher.Constraint("Coincident", 8, 2, 9, 1),
    Sketcher.Constraint("Coincident", 9, 2, 10, 1),
    Sketcher.Constraint("Coincident", 10, 2, 11, 1),
    Sketcher.Constraint("Coincident", 11, 2, 0, 1),
    Sketcher.Constraint("Coincident", 12, 2, 13, 1),
    Sketcher.Constraint("Coincident", 13, 2, 14, 1),
    Sketcher.Constraint("Coincident", 14, 2, 15, 1),
    Sketcher.Constraint("Coincident", 15, 2, 16, 1),
    Sketcher.Constraint("Coincident", 16, 2, 17, 1),
    Sketcher.Constraint("Coincident", 17, 2, 18, 1),
    Sketcher.Constraint("Coincident", 18, 2, 19, 1),
    Sketcher.Constraint("Coincident", 19, 2, 20, 1),
    Sketcher.Constraint("Coincident", 20, 2, 21, 1),
    Sketcher.Constraint("Coincident", 21, 2, 22, 1),
    Sketcher.Constraint("Coincident", 22, 2, 23, 1),
    Sketcher.Constraint("Coincident", 23, 2, 12, 1),
    Sketcher.Constraint("Coincident", 24, 2, 25, 1),
    Sketcher.Constraint("Coincident", 25, 2, 26, 1),
    Sketcher.Constraint("Coincident", 26, 2, 27, 1),
    Sketcher.Constraint("Coincident", 27, 2, 28, 1),
    Sketcher.Constraint("Coincident", 28, 2, 29, 1),
    Sketcher.Constraint("Coincident", 29, 2, 30, 1),
    Sketcher.Constraint("Coincident", 30, 2, 31, 1),
    Sketcher.Constraint("Coincident", 31, 2, 32, 1),
    Sketcher.Constraint("Coincident", 32, 2, 33, 1),
    Sketcher.Constraint("Coincident", 33, 2, 34, 1),
    Sketcher.Constraint("Coincident", 34, 2, 35, 1),
    Sketcher.Constraint("Coincident", 35, 2, 24, 1),
    Sketcher.Constraint("Coincident", 36, 2, 37, 1),
    Sketcher.Constraint("Coincident", 37, 2, 38, 1),
    Sketcher.Constraint("Coincident", 38, 2, 39, 1),
    Sketcher.Constraint("Coincident", 39, 2, 40, 1),
    Sketcher.Constraint("Coincident", 40, 2, 41, 1),
    Sketcher.Constraint("Coincident", 41, 2, 42, 1),
    Sketcher.Constraint("Coincident", 42, 2, 43, 1),
    Sketcher.Constraint("Coincident", 43, 2, 44, 1),
    Sketcher.Constraint("Coincident", 44, 2, 45, 1),
    Sketcher.Constraint("Coincident", 45, 2, 46, 1),
    Sketcher.Constraint("Coincident", 46, 2, 47, 1),
    Sketcher.Constraint("Coincident", 47, 2, 36, 1),
    Sketcher.Constraint("Horizontal", 0),
    Sketcher.Constraint("Vertical", 1),
    Sketcher.Constraint("Horizontal", 2),
    Sketcher.Constraint("Vertical", 3),
    Sketcher.Constraint("Horizontal", 4),
    Sketcher.Constraint("Vertical", 5),
    Sketcher.Constraint("Horizontal", 6),
    Sketcher.Constraint("Vertical", 7),
    Sketcher.Constraint("Horizontal", 8),
    Sketcher.Constraint("Vertical", 9),
    Sketcher.Constraint("Horizontal", 10),
    Sketcher.Constraint("Vertical", 11),
    Sketcher.Constraint("Vertical", 12),
    Sketcher.Constraint("Horizontal", 13),
    Sketcher.Constraint("Vertical", 14),
    Sketcher.Constraint("Horizontal", 15),
    Sketcher.Constraint("Vertical", 16),
    Sketcher.Constraint("Horizontal", 17),
    Sketcher.Constraint("Vertical", 18),
    Sketcher.Constraint("Horizontal", 19),
    Sketcher.Constraint("Vertical", 20),
    Sketcher.Constraint("Horizontal", 21),
    Sketcher.Constraint("Vertical", 22),
    Sketcher.Constraint("Horizontal", 23),
    Sketcher.Constraint("Vertical", 24),
    Sketcher.Constraint("Horizontal", 25),
    Sketcher.Constraint("Vertical", 26),
    Sketcher.Constraint("Horizontal", 27),
    Sketcher.Constraint("Vertical", 28),
    Sketcher.Constraint("Horizontal", 29),
    Sketcher.Constraint("Vertical", 30),
    Sketcher.Constraint("Horizontal", 31),
    Sketcher.Constraint("Vertical", 32),
    Sketcher.Constraint("Horizontal", 33),
    Sketcher.Constraint("Vertical", 34),
    Sketcher.Constraint("Horizontal", 35),
    Sketcher.Constraint("Vertical", 36),
    Sketcher.Constraint("Horizontal", 37),
    Sketcher.Constraint("Vertical", 38),
    Sketcher.Constraint("Horizontal", 39),
    Sketcher.Constraint("Vertical", 40),
    Sketcher.Constraint("Horizontal", 41),
    Sketcher.Constraint("Vertical", 42),
    Sketcher.Constraint("Horizontal", 43),
    Sketcher.Constraint("Vertical", 44),
    Sketcher.Constraint("Horizontal", 45),
    Sketcher.Constraint("Vertical", 46),
    Sketcher.Constraint("Horizontal", 47),
    Sketcher.Constraint("Symmetric", 15, 2, 24, 2, -1),
    Sketcher.Constraint("Symmetric", 13, 2, 26, 2, -1),
    Sketcher.Constraint("Symmetric", 23, 2, 28, 2, -1),
    Sketcher.Constraint("Symmetric", 21, 2, 30, 2, -1),
    Sketcher.Constraint("Symmetric", 19, 2, 32, 2, -1),
    Sketcher.Constraint("Symmetric", 17, 2, 34, 2, -1),
    Sketcher.Constraint("Symmetric", 2, 2, 36, 2, -1),
    Sketcher.Constraint("Symmetric", 0, 2, 38, 2, -1),
    Sketcher.Constraint("Symmetric", 10, 2, 40, 2, -1),
    Sketcher.Constraint("Symmetric", 8, 2, 42, 2, -1),
    Sketcher.Constraint("Symmetric", 6, 2, 44, 2, -1),
    Sketcher.Constraint("Symmetric", 4, 2, 46, 2, -1),
    Sketcher.Constraint("Horizontal", 2, 2, 5, 2),
    Sketcher.Constraint("Horizontal", 0, 2, 7, 2),
    Sketcher.Constraint("Horizontal", 15, 2, 18, 2),
    Sketcher.Constraint("Horizontal", 13, 2, 20, 2),
    Sketcher.Constraint("Vertical", 5, 2, 8, 2),
    Sketcher.Constraint("Vertical", 3, 2, 10, 2),
    Sketcher.Constraint("Vertical", 11, 2, 12, 2),
    Sketcher.Constraint("Vertical", 1, 2, 13, 2),
    Sketcher.Constraint("Vertical", 12, 2, 15, 2),
    Sketcher.Constraint("Vertical", 9, 2, 17, 2),
    Sketcher.Constraint("Vertical", 7, 2, 19, 2),
    Sketcher.Constraint("Vertical", 18, 2, 21, 2),
    Sketcher.Constraint("Equal", 4, 6),
    Sketcher.Constraint("Equal", 47, 1),
    Sketcher.Constraint("Equal", 5, 9),
    Sketcher.Constraint("Equal", 11, 12),
    Sketcher.Constraint("Equal", 7, 14),
    Sketcher.Constraint("Equal", 12, 16),
    Sketcher.Constraint("DistanceX", 4, 2, 4, 1, Q("4 mm")),
    Sketcher.Constraint("DistanceX", -1, 1, 6, 2, Q("8 mm")),
    Sketcher.Constraint("DistanceX", 6, 2, 1, 2, Q("17 mm")),
    Sketcher.Constraint("DistanceY", 3, 2, 10, 2, Q("8 mm")),
    Sketcher.Constraint("DistanceY", -1, 1, 0, 2, Q("120 mm")),
    Sketcher.Constraint("DistanceY", -1, 1, 12, 2, Q("76 mm")),
])
sketch6.setExpression("Constraints[126]", "Params.sketch6_width")
pocket4 = body.newObject("PartDesign::Pocket", "Pocket003")
pocket4.Profile = sketch6
pocket4.setExpression("Length", "Params.pocket4_length")
pocket4.Reversed = True

# Sketch on XZ plane
sketch7 = body.newObject("Sketcher::SketchObject", "Sketch006")
sketch7.AttachmentSupport = (doc.getObject("XZ_Plane"), [""])
sketch7.MapMode = "FlatFace"
sketch7.AttachmentOffset = App.Placement(App.Vector(0, 0, -5), App.Rotation())
sketch7.addGeometry([
    Part.LineSegment(App.Vector(10, 130, 0), App.Vector(-20, 130, 0)),  # 0
    Part.LineSegment(App.Vector(-20, 130, 0), App.Vector(-20, 133.5, 0)),  # 1
    Part.LineSegment(App.Vector(-20, 133.5, 0), App.Vector(10, 133.5, 0)),  # 2
    Part.LineSegment(App.Vector(10, 133.5, 0), App.Vector(10, 130, 0)),  # 3
    Part.LineSegment(App.Vector(-20, -133.5, 0), App.Vector(-20, -130, 0)),  # 4
    Part.LineSegment(App.Vector(-20, -130, 0), App.Vector(10, -130, 0)),  # 5
    Part.LineSegment(App.Vector(10, -130, 0), App.Vector(10, -133.5, 0)),  # 6
    Part.LineSegment(App.Vector(10, -133.5, 0), App.Vector(-20, -133.5, 0)),  # 7
], False)
sketch7.addConstraint([
    Sketcher.Constraint("Coincident", 0, 2, 1, 1),
    Sketcher.Constraint("Coincident", 1, 2, 2, 1),
    Sketcher.Constraint("Coincident", 2, 2, 3, 1),
    Sketcher.Constraint("Coincident", 3, 2, 0, 1),
    Sketcher.Constraint("Coincident", 4, 2, 5, 1),
    Sketcher.Constraint("Coincident", 5, 2, 6, 1),
    Sketcher.Constraint("Coincident", 6, 2, 7, 1),
    Sketcher.Constraint("Coincident", 7, 2, 4, 1),
    Sketcher.Constraint("Horizontal", 0),
    Sketcher.Constraint("Vertical", 1),
    Sketcher.Constraint("Horizontal", 2),
    Sketcher.Constraint("Vertical", 3),
    Sketcher.Constraint("Vertical", 4),
    Sketcher.Constraint("Horizontal", 5),
    Sketcher.Constraint("Vertical", 6),
    Sketcher.Constraint("Horizontal", 7),
    Sketcher.Constraint("Symmetric", 0, 2, 4, 2, -1),
    Sketcher.Constraint("Symmetric", 2, 2, 6, 2, -1),
    Sketcher.Constraint("DistanceX", 0, 2, 0, 1, Q("30 mm")),
    Sketcher.Constraint("DistanceY", 1, 1, 1, 2, Q("3.5 mm")),
    Sketcher.Constraint("DistanceX", -1, 1, 2, 2, Q("10 mm")),
    Sketcher.Constraint("DistanceY", -1, 1, 0, 2, Q("130 mm")),
])
sketch7.setExpression("Constraints[18]", "Params.sketch7_width")
sketch7.setExpression("Constraints[19]", "Params.sketch7_height")
pad3 = body.newObject("PartDesign::Pad", "Pad002")
pad3.Profile = sketch7
pad3.setExpression("Length", "Params.pad3_length")

doc.recompute()
